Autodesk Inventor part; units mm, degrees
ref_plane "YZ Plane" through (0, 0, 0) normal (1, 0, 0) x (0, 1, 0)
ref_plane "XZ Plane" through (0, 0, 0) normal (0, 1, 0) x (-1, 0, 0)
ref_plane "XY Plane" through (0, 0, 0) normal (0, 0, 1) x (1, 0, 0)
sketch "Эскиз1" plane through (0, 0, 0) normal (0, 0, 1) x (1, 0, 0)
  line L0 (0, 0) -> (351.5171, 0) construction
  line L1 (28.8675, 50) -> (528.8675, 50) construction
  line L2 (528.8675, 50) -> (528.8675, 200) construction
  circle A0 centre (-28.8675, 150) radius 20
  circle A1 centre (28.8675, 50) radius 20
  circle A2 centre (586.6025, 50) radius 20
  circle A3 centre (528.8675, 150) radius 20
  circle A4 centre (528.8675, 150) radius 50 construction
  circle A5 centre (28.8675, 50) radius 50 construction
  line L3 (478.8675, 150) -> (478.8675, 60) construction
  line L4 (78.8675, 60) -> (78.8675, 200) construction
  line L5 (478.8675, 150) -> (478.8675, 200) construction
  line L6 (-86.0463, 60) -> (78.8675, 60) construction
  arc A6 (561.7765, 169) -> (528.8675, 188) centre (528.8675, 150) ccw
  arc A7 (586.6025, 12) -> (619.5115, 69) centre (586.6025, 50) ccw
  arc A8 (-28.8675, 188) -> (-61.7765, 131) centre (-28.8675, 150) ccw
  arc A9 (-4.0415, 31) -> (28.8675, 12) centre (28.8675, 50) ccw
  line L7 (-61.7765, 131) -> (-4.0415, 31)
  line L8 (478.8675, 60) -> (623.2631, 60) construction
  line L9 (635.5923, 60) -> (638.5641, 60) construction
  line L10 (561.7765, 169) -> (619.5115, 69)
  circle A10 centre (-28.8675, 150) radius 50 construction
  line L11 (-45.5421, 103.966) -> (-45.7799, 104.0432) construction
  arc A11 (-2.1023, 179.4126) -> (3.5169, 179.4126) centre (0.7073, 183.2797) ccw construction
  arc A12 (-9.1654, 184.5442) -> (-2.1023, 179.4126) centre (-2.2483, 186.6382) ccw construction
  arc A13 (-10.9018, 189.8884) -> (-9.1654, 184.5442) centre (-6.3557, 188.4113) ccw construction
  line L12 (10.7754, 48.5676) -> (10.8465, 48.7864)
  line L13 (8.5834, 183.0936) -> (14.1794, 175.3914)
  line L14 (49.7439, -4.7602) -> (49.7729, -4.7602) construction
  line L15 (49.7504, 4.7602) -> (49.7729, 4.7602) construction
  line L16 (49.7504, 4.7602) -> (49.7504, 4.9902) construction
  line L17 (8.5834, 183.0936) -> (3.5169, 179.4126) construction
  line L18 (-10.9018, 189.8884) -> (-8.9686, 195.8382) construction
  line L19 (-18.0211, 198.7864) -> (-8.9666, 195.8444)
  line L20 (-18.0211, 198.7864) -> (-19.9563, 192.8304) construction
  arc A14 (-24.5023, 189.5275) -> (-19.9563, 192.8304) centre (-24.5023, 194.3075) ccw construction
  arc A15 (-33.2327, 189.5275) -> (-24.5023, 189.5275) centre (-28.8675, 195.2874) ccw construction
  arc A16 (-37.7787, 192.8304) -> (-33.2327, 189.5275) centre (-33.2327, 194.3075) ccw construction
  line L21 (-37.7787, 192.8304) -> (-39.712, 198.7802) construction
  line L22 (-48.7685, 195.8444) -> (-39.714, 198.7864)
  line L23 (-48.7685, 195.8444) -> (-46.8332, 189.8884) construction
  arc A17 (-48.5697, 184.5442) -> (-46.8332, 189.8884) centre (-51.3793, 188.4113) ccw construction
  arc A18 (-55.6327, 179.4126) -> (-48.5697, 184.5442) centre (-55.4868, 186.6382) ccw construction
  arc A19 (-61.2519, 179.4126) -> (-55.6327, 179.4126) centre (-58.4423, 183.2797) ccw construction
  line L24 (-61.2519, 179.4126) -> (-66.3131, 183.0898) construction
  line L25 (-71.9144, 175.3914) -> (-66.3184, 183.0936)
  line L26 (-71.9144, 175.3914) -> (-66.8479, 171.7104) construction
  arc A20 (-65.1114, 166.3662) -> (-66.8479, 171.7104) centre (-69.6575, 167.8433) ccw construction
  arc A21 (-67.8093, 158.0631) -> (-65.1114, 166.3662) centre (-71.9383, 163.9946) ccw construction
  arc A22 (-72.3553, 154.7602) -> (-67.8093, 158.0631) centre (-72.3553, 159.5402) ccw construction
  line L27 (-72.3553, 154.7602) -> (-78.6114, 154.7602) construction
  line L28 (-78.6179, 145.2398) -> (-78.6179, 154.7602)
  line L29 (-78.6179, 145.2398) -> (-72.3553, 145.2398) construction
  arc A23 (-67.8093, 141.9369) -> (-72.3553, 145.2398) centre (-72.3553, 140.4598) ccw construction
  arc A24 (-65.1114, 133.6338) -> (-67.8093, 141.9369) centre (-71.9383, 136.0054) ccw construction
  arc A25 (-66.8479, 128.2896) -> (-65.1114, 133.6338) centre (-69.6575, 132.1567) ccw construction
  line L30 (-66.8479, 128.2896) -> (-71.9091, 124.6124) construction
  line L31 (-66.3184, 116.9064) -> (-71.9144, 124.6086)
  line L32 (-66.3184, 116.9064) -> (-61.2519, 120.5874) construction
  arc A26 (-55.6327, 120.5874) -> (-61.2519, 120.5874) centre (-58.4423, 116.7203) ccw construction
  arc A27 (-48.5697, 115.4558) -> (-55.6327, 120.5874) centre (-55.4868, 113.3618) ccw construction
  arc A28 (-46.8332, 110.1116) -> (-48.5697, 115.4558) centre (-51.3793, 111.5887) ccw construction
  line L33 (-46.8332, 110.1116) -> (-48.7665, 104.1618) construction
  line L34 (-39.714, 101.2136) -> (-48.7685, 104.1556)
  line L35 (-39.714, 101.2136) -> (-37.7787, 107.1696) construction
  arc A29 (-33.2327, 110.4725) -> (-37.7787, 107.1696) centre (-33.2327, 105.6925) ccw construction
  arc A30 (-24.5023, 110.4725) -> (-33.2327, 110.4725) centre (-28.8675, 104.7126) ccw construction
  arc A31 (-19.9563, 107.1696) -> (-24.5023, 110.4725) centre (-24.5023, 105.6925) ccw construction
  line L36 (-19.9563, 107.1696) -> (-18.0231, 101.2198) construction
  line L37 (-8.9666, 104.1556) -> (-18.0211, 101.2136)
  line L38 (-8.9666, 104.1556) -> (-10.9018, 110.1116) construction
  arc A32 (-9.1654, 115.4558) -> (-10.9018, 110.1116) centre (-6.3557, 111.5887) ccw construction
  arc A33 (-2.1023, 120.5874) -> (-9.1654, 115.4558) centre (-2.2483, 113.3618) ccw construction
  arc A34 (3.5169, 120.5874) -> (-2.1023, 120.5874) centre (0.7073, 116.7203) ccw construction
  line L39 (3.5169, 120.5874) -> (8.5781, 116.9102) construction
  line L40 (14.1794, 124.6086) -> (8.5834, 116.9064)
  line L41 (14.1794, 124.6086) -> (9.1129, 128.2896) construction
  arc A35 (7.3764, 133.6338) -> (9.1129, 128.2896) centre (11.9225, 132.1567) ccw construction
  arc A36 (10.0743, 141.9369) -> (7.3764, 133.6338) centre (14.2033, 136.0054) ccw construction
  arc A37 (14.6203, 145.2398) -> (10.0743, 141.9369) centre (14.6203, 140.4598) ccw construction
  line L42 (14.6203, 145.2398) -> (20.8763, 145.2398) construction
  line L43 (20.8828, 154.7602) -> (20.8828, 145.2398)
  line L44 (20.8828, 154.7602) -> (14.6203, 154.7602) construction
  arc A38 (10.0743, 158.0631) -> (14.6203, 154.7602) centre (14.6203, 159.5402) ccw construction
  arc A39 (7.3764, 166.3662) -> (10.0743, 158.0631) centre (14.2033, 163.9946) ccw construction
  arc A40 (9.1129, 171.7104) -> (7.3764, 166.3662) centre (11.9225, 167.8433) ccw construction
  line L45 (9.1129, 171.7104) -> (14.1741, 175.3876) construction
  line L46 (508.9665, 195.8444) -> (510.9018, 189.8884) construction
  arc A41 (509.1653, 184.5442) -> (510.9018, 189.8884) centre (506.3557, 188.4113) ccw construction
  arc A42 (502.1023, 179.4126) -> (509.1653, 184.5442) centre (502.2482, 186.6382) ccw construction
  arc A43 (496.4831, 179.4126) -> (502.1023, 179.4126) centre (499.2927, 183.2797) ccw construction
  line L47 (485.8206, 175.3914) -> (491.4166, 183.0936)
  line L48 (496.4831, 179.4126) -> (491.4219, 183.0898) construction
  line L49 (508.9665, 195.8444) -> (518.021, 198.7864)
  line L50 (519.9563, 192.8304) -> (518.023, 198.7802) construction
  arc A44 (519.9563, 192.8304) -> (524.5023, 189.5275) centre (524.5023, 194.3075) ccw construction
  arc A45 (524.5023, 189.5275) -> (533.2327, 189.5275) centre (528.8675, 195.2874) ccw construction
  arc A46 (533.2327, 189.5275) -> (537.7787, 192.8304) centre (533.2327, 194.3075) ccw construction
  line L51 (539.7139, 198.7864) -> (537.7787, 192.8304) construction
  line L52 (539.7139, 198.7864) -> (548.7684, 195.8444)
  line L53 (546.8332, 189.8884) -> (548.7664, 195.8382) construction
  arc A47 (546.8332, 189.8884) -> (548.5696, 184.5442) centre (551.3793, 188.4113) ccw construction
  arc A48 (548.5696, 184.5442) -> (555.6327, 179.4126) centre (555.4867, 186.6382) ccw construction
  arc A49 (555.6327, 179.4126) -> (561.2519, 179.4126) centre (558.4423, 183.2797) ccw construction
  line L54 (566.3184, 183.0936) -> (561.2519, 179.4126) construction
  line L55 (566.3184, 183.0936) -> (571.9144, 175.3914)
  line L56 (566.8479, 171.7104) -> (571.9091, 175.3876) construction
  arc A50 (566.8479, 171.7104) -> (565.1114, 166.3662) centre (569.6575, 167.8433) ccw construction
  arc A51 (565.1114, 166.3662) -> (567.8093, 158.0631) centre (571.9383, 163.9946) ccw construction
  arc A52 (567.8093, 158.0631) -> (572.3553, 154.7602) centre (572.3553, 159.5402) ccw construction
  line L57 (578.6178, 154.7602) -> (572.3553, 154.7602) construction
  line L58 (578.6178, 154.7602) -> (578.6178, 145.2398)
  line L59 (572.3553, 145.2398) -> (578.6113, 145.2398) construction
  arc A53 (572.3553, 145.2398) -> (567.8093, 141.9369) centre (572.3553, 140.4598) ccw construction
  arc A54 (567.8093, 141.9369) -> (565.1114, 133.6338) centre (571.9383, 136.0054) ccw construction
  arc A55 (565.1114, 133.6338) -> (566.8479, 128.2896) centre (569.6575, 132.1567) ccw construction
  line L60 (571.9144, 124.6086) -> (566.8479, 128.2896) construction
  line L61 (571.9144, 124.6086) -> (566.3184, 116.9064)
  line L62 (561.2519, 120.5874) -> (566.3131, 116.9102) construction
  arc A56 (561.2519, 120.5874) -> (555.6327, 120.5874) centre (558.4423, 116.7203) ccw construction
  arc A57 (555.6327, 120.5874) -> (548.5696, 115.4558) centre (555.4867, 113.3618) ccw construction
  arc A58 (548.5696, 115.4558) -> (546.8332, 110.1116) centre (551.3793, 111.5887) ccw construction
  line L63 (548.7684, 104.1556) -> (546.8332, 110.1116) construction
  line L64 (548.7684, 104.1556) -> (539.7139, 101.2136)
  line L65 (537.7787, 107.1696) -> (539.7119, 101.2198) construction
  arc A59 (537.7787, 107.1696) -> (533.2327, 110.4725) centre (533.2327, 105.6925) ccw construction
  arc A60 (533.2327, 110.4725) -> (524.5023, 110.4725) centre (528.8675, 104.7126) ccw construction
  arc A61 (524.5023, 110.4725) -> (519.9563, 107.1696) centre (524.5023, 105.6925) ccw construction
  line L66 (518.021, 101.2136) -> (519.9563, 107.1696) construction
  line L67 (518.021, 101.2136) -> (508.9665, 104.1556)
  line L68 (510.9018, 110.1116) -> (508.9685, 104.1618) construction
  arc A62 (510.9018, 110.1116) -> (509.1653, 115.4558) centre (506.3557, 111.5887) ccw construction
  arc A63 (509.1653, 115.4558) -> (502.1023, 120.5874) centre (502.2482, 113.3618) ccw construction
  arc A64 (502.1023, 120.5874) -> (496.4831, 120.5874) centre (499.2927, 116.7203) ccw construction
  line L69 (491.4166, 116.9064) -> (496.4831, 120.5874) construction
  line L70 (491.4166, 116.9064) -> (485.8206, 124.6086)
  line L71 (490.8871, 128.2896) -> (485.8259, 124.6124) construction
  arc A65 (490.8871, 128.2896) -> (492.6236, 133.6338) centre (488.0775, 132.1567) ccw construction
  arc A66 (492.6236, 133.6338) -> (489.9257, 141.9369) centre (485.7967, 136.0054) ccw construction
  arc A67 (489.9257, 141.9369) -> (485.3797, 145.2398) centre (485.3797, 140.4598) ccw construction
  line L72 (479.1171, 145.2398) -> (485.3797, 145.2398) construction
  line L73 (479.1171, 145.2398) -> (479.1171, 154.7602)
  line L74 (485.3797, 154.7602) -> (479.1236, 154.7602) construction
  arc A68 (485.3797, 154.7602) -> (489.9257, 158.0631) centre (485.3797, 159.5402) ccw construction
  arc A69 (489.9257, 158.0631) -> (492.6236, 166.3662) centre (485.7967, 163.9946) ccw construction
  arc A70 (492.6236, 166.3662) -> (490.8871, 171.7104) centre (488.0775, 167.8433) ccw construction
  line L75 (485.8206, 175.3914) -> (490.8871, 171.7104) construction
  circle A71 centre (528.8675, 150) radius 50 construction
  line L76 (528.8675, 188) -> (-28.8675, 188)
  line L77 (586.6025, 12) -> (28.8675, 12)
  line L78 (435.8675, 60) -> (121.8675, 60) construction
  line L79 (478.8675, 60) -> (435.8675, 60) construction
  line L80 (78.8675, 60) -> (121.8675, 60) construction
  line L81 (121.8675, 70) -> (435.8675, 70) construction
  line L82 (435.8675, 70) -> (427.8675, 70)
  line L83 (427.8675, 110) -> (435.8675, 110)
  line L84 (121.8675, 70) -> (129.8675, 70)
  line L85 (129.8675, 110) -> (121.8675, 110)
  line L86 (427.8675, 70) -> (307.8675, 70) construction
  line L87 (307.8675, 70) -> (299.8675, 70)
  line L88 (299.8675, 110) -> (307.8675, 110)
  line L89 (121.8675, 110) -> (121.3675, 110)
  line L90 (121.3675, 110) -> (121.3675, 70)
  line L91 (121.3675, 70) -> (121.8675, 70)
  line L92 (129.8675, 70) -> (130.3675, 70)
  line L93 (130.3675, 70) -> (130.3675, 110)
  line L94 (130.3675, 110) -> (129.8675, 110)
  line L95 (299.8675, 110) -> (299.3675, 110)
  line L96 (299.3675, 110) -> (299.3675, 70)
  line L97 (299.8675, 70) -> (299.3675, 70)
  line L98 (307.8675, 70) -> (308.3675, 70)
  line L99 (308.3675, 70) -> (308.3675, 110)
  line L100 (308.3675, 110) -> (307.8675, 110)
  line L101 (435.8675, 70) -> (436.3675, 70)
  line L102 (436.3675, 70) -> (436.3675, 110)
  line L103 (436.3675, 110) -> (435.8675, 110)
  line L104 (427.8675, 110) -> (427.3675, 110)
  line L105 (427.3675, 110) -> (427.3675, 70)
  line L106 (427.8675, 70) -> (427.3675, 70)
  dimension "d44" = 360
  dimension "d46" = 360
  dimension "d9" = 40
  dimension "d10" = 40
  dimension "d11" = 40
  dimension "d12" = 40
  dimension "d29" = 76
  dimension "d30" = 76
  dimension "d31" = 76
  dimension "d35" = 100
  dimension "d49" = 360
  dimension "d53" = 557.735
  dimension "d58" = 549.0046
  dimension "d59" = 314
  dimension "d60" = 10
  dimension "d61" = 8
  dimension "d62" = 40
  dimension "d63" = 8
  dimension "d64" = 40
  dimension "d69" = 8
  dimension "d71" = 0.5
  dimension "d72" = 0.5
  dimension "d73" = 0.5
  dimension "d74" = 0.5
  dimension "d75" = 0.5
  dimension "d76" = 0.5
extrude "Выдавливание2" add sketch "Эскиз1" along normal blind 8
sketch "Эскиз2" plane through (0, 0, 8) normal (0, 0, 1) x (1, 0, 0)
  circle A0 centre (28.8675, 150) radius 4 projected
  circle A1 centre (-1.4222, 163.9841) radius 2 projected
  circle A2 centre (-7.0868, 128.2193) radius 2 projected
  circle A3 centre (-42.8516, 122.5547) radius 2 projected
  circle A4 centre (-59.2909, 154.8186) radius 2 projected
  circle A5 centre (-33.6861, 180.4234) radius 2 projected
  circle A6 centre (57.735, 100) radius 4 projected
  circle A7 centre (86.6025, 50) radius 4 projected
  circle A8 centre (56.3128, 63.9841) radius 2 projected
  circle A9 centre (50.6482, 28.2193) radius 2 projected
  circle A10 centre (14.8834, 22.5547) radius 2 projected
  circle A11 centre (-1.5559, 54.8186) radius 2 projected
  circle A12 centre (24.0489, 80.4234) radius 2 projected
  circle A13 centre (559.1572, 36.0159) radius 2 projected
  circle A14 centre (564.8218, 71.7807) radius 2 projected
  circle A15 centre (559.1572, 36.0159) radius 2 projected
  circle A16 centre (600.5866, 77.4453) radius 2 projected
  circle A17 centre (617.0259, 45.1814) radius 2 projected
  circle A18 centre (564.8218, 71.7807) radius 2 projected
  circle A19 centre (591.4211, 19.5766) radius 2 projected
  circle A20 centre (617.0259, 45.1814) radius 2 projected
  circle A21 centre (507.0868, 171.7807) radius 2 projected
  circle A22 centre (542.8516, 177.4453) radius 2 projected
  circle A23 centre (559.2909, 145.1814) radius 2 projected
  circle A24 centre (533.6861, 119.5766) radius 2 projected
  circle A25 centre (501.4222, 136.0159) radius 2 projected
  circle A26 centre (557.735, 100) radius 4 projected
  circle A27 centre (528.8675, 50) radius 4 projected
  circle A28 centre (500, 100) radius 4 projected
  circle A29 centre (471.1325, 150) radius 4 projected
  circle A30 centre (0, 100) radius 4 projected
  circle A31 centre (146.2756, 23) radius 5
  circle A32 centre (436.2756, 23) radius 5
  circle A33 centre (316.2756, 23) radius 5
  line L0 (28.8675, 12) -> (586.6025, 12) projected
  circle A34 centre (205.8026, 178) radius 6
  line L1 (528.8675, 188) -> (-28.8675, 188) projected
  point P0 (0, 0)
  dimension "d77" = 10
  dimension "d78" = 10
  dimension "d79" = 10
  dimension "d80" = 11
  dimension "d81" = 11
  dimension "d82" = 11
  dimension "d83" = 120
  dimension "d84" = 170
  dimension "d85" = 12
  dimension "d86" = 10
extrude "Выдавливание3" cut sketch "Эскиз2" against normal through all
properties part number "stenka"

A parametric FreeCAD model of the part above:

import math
import FreeCAD as App
import Part
import Sketcher
from FreeCAD import Vector
Q = App.Units.Quantity


def add_polygon(sketch, points):
    """Adds a closed chain of lines whose ends are joined by coincident constraints."""
    first, n = sketch.GeometryCount, len(points)
    for a, b in zip(points, points[1:] + points[:1]):
        sketch.addGeometry(Part.LineSegment(App.Vector(*a, 0), App.Vector(*b, 0)), False)
    for i in range(n):
        sketch.addConstraint(Sketcher.Constraint("Coincident", first + i, 2, first + (i + 1) % n, 1))

doc = App.newDocument("Part")
body = doc.addObject("PartDesign::Body", "Body")

sketch1 = body.newObject("Sketcher::SketchObject", "Sketch")
sketch1.AttachmentSupport = (doc.getObject("XY_Plane"), [""])
sketch1.MapMode = "FlatFace"
sketch1.addGeometry(Part.LineSegment(Vector(620, 69, 0), Vector(562, 169, 0)), False)
sketch1.addGeometry(Part.ArcOfCircle(Part.Circle(Vector(529, 150, 0), Vector(0, 0, 1), 38), math.radians(30), math.radians(90)), False)
sketch1.addGeometry(Part.LineSegment(Vector(529, 188, 0), Vector(-29, 188, 0)), False)
sketch1.addGeometry(Part.ArcOfCircle(Part.Circle(Vector(-29, 150, 0), Vector(0, 0, 1), 38), math.radians(90), math.radians(210)), False)
sketch1.addGeometry(Part.LineSegment(Vector(-62, 131, 0), Vector(-4, 31, 0)), False)
sketch1.addGeometry(Part.ArcOfCircle(Part.Circle(Vector(29, 50, 0), Vector(0, 0, 1), 38), math.radians(-150), math.radians(-90)), False)
sketch1.addGeometry(Part.LineSegment(Vector(29, 12, 0), Vector(587, 12, 0)), False)
sketch1.addGeometry(Part.ArcOfCircle(Part.Circle(Vector(587, 50, 0), Vector(0, 0, 1), 38), math.radians(-90), math.radians(30)), False)
sketch1.addGeometry(Part.Circle(Vector(29, 50, 0), Vector(0, 0, 1), 20), False)
add_polygon(sketch1, [(130, 70), (121, 70), (121, 110), (130, 110)])
sketch1.addGeometry(Part.Circle(Vector(587, 50, 0), Vector(0, 0, 1), 20), False)
add_polygon(sketch1, [(308, 70), (299, 70), (299, 110), (308, 110)])
add_polygon(sketch1, [(436, 70), (427, 70), (427, 110), (436, 110)])
sketch1.addGeometry(Part.Circle(Vector(-29, 150, 0), Vector(0, 0, 1), 20), False)
sketch1.addGeometry(Part.Circle(Vector(529, 150, 0), Vector(0, 0, 1), 20), False)
sketch1.addConstraint([
    Sketcher.Constraint("Tangent", 0, 2, 1, 1),
    Sketcher.Constraint("Tangent", 1, 2, 2, 1),
    Sketcher.Constraint("Tangent", 2, 2, 3, 1),
    Sketcher.Constraint("Tangent", 3, 2, 4, 1),
    Sketcher.Constraint("Tangent", 4, 2, 5, 1),
    Sketcher.Constraint("Tangent", 5, 2, 6, 1),
    Sketcher.Constraint("Tangent", 6, 2, 7, 1),
    Sketcher.Constraint("Tangent", 7, 2, 0, 1),
    Sketcher.Constraint("Horizontal", 2),
    Sketcher.Constraint("Horizontal", 6),
    Sketcher.Constraint("Horizontal", 9),
    Sketcher.Constraint("Vertical", 10),
    Sketcher.Constraint("Horizontal", 11),
    Sketcher.Constraint("Vertical", 12),
    Sketcher.Constraint("Horizontal", 14),
    Sketcher.Constraint("Vertical", 15),
    Sketcher.Constraint("Horizontal", 16),
    Sketcher.Constraint("Vertical", 17),
    Sketcher.Constraint("Horizontal", 18),
    Sketcher.Constraint("Vertical", 19),
    Sketcher.Constraint("Horizontal", 20),
    Sketcher.Constraint("Vertical", 21),
    Sketcher.Constraint("Coincident", 8, 3, 5, 3),
    Sketcher.Constraint("Coincident", 13, 3, 7, 3),
    Sketcher.Constraint("Coincident", 22, 3, 3, 3),
    Sketcher.Constraint("Coincident", 23, 3, 1, 3),
    Sketcher.Constraint("Equal", 1, 3),
    Sketcher.Constraint("Equal", 3, 5),
    Sketcher.Constraint("Equal", 5, 7),
    Sketcher.Constraint("Equal", 8, 13),
    Sketcher.Constraint("Equal", 13, 22),
    Sketcher.Constraint("Equal", 22, 23),
    Sketcher.Constraint("Parallel", 0, 4),
    Sketcher.Constraint("Horizontal", 12, 2, 14, 2),
    Sketcher.Constraint("Horizontal", 11, 2, 15, 2),
    Sketcher.Constraint("Horizontal", 17, 2, 18, 2),
    Sketcher.Constraint("Horizontal", 16, 2, 19, 2),
    Sketcher.Constraint("Equal", 11, 14),
    Sketcher.Constraint("Equal", 16, 18),
    Sketcher.Constraint("Diameter", 8, Q("40 mm")),
    Sketcher.Constraint("Radius", 1, Q("38 mm")),
    Sketcher.Constraint("DistanceY", 10, 1, 10, 2, Q("40 mm")),
    Sketcher.Constraint("DistanceY", 5, 3, 3, 3, Q("100 mm")),
    Sketcher.Constraint("DistanceY", 19, 2, 1, 3, Q("40 mm")),
    Sketcher.Constraint("DistanceX", 2, 2, 2, 1, Q("557.735 mm")),
    Sketcher.Constraint("DistanceX", 9, 2, 9, 1, Q("9 mm")),
    Sketcher.Constraint("Angle", 0, Q("120 deg")),
    Sketcher.Constraint("DistanceY", -1, 1, 1, 3, Q("150 mm")),
    Sketcher.Constraint("DistanceX", 12, 2, 14, 2, Q("169 mm")),
    Sketcher.Constraint("DistanceX", 17, 2, 18, 2, Q("119 mm")),
    Sketcher.Constraint("DistanceX", 5, 3, 9, 2, Q("92.5 mm")),
    Sketcher.Constraint("DistanceX", -1, 1, 1, 3, Q("528.8675 mm")),
])
pad1 = body.newObject("PartDesign::Pad", "Pad")
pad1.Profile = sketch1
pad1.Length = 8

sketch2 = body.newObject("Sketcher::SketchObject", "Sketch001")
sketch2.AttachmentSupport = (doc.getObject("XY_Plane"), [""])
sketch2.MapMode = "FlatFace"
sketch2.AttachmentOffset = App.Placement(Vector(0, 0, 8), App.Rotation())
sketch2.addGeometry([
    Part.Circle(Vector(28.9, 150, 0), Vector(0, 0, 1), 4),
    Part.Circle(Vector(-1.4, 164, 0), Vector(0, 0, 1), 2),
    Part.Circle(Vector(-7.1, 128.2, 0), Vector(0, 0, 1), 2),
    Part.Circle(Vector(-42.9, 122.6, 0), Vector(0, 0, 1), 2),
    Part.Circle(Vector(-59.3, 154.8, 0), Vector(0, 0, 1), 2),
    Part.Circle(Vector(-33.7, 180.4, 0), Vector(0, 0, 1), 2),
    Part.Circle(Vector(57.7, 100, 0), Vector(0, 0, 1), 4),
    Part.Circle(Vector(86.6, 50, 0), Vector(0, 0, 1), 4),
    Part.Circle(Vector(56.3, 64, 0), Vector(0, 0, 1), 2),
    Part.Circle(Vector(50.6, 28.2, 0), Vector(0, 0, 1), 2),
    Part.Circle(Vector(14.9, 22.6, 0), Vector(0, 0, 1), 2),
    Part.Circle(Vector(-1.6, 54.8, 0), Vector(0, 0, 1), 2),
    Part.Circle(Vector(24, 80.4, 0), Vector(0, 0, 1), 2),
    Part.Circle(Vector(559.2, 36, 0), Vector(0, 0, 1), 2),
    Part.Circle(Vector(564.8, 71.8, 0), Vector(0, 0, 1), 2),
    Part.Circle(Vector(600.6, 77.4, 0), Vector(0, 0, 1), 2),
    Part.Circle(Vector(617, 45.2, 0), Vector(0, 0, 1), 2),
    Part.Circle(Vector(591.4, 19.6, 0), Vector(0, 0, 1), 2),
    Part.Circle(Vector(507.1, 171.8, 0), Vector(0, 0, 1), 2),
    Part.Circle(Vector(542.9, 177.4, 0), Vector(0, 0, 1), 2),
    Part.Circle(Vector(559.3, 145.2, 0), Vector(0, 0, 1), 2),
    Part.Circle(Vector(533.7, 119.6, 0), Vector(0, 0, 1), 2),
    Part.Circle(Vector(501.4, 136, 0), Vector(0, 0, 1), 2),
    Part.Circle(Vector(557.7, 100, 0), Vector(0, 0, 1), 4),
    Part.Circle(Vector(528.9, 50, 0), Vector(0, 0, 1), 4),
    Part.Circle(Vector(500, 100, 0), Vector(0, 0, 1), 4),
    Part.Circle(Vector(471.1, 150, 0), Vector(0, 0, 1), 4),
    Part.Circle(Vector(0, 100, 0), Vector(0, 0, 1), 4),
    Part.Circle(Vector(146.3, 23, 0), Vector(0, 0, 1), 5),
    Part.Circle(Vector(436.3, 23, 0), Vector(0, 0, 1), 5),
    Part.Circle(Vector(316.3, 23, 0), Vector(0, 0, 1), 5),
    Part.Circle(Vector(205.8, 178, 0), Vector(0, 0, 1), 6),
], False)
sketch2.addConstraint([
    Sketcher.Constraint("Equal", 1, 2),
    Sketcher.Constraint("Equal", 2, 3),
    Sketcher.Constraint("Equal", 3, 4),
    Sketcher.Constraint("Equal", 4, 5),
    Sketcher.Constraint("Equal", 0, 6),
    Sketcher.Constraint("Equal", 6, 7),
    Sketcher.Constraint("Equal", 5, 8),
    Sketcher.Constraint("Equal", 8, 9),
    Sketcher.Constraint("Equal", 9, 10),
    Sketcher.Constraint("Equal", 10, 11),
    Sketcher.Constraint("Equal", 11, 12),
    Sketcher.Constraint("Equal", 12, 13),
    Sketcher.Constraint("Equal", 13, 14),
    Sketcher.Constraint("Equal", 14, 15),
    Sketcher.Constraint("Equal", 15, 16),
    Sketcher.Constraint("Equal", 16, 17),
    Sketcher.Constraint("Equal", 17, 18),
    Sketcher.Constraint("Equal", 18, 19),
    Sketcher.Constraint("Equal", 19, 20),
    Sketcher.Constraint("Equal", 20, 21),
    Sketcher.Constraint("Equal", 21, 22),
    Sketcher.Constraint("Equal", 7, 23),
    Sketcher.Constraint("Equal", 23, 24),
    Sketcher.Constraint("Equal", 24, 25),
    Sketcher.Constraint("Equal", 25, 26),
    Sketcher.Constraint("Equal", 26, 27),
    Sketcher.Constraint("Equal", 28, 29),
    Sketcher.Constraint("Equal", 29, 30),
    Sketcher.Constraint("PointOnObject", 27, 3, -2),
    Sketcher.Constraint("Horizontal", 6, 3, 23, 3),
    Sketcher.Constraint("Horizontal", 7, 3, 24, 3),
    Sketcher.Constraint("Horizontal", 23, 3, 25, 3),
    Sketcher.Constraint("Horizontal", 0, 3, 26, 3),
    Sketcher.Constraint("Horizontal", 25, 3, 27, 3),
    Sketcher.Constraint("Horizontal", 28, 3, 29, 3),
    Sketcher.Constraint("Horizontal", 29, 3, 30, 3),
    Sketcher.Constraint("Diameter", 28, Q("10 mm")),
    Sketcher.Constraint("Diameter", 31, Q("12 mm")),
    Sketcher.Constraint("Diameter", 0, Q("8 mm")),
    Sketcher.Constraint("Diameter", 1, Q("4 mm")),
    Sketcher.Constraint("DistanceX", 30, 3, 29, 3, Q("120 mm")),
    Sketcher.Constraint("DistanceX", 28, 3, 30, 3, Q("170 mm")),
    Sketcher.Constraint("DistanceY", -1, 1, 0, 3, Q("150 mm")),
    Sketcher.Constraint("DistanceY", -1, 1, 6, 3, Q("100 mm")),
    Sketcher.Constraint("DistanceY", -1, 1, 7, 3, Q("50 mm")),
    Sketcher.Constraint("DistanceX", -1, 1, 25, 3, Q("500 mm")),
    Sketcher.Constraint("DistanceY", -1, 1, 28, 3, Q("23 mm")),
    Sketcher.Constraint("DistanceY", -1, 1, 31, 3, Q("178 mm")),
    Sketcher.Constraint("DistanceY", 9, 3, 2, 3, Q("100 mm")),
    Sketcher.Constraint("DistanceY", 14, 3, 18, 3, Q("100 mm")),
    Sketcher.Constraint("DistanceY", 15, 3, 19, 3, Q("100 mm")),
    Sketcher.Constraint("DistanceX", 7, 3, 31, 3, Q("119.2 mm")),
    Sketcher.Constraint("DistanceY", -1, 1, 1, 3, Q("163.984 mm")),
    Sketcher.Constraint("DistanceX", 4, 3, -1, 1, Q("59.291 mm")),
    Sketcher.Constraint("DistanceX", 5, 3, -1, 1, Q("33.686 mm")),
    Sketcher.Constraint("DistanceX", -1, 1, 6, 3, Q("57.735 mm")),
    Sketcher.Constraint("DistanceY", -1, 1, 8, 3, Q("63.984 mm")),
    Sketcher.Constraint("DistanceX", 11, 3, -1, 1, Q("1.556 mm")),
    Sketcher.Constraint("DistanceX", -1, 1, 12, 3, Q("24.049 mm")),
    Sketcher.Constraint("DistanceY", -1, 1, 13, 3, Q("36.016 mm")),
    Sketcher.Constraint("DistanceX", -1, 1, 16, 3, Q("617.026 mm")),
    Sketcher.Constraint("DistanceX", -1, 1, 17, 3, Q("591.421 mm")),
    Sketcher.Constraint("DistanceX", -1, 1, 20, 3, Q("559.291 mm")),
    Sketcher.Constraint("DistanceX", -1, 1, 21, 3, Q("533.686 mm")),
    Sketcher.Constraint("DistanceY", -1, 1, 22, 3, Q("136.016 mm")),
    Sketcher.Constraint("DistanceX", -1, 1, 23, 3, Q("557.735 mm")),
    Sketcher.Constraint("DistanceX", 3, 3, 0, 3, Q("71.719 mm")),
    Sketcher.Constraint("DistanceY", 3, 3, 4, 3, Q("32.264 mm")),
    Sketcher.Constraint("DistanceX", 4, 3, 2, 3, Q("52.204 mm")),
    Sketcher.Constraint("DistanceX", 5, 3, 1, 3, Q("32.264 mm")),
    Sketcher.Constraint("DistanceY", 2, 3, 5, 3, Q("52.204 mm")),
    Sketcher.Constraint("DistanceX", 0, 3, 7, 3, Q("57.735 mm")),
    Sketcher.Constraint("DistanceX", 2, 3, 9, 3, Q("57.735 mm")),
    Sketcher.Constraint("DistanceX", 10, 3, 7, 3, Q("71.719 mm")),
    Sketcher.Constraint("DistanceY", 10, 3, 11, 3, Q("32.264 mm")),
    Sketcher.Constraint("DistanceX", 12, 3, 8, 3, Q("32.264 mm")),
    Sketcher.Constraint("DistanceY", 12, 3, 2, 3, Q("47.796 mm")),
    Sketcher.Constraint("DistanceX", 9, 3, 13, 3, Q("508.509 mm")),
    Sketcher.Constraint("DistanceX", 8, 3, 14, 3, Q("508.509 mm")),
    Sketcher.Constraint("DistanceX", 7, 3, 15, 3, Q("513.984 mm")),
    Sketcher.Constraint("DistanceY", 16, 3, 15, 3, Q("32.264 mm")),
    Sketcher.Constraint("DistanceY", 17, 3, 14, 3, Q("52.204 mm")),
    Sketcher.Constraint("DistanceX", 18, 3, 14, 3, Q("57.735 mm")),
    Sketcher.Constraint("DistanceX", 19, 3, 15, 3, Q("57.735 mm")),
    Sketcher.Constraint("DistanceY", 20, 3, 19, 3, Q("32.264 mm")),
    Sketcher.Constraint("DistanceY", 14, 3, 21, 3, Q("47.796 mm")),
    Sketcher.Constraint("DistanceX", 22, 3, 21, 3, Q("32.264 mm")),
    Sketcher.Constraint("DistanceX", 26, 3, 19, 3, Q("71.719 mm")),
    Sketcher.Constraint("DistanceX", 7, 3, 28, 3, Q("59.673 mm")),
    Sketcher.Constraint("DistanceX", 29, 3, 24, 3, Q("92.592 mm")),
    Sketcher.Constraint("DistanceX", -1, 1, 0, 3, Q("28.8675 mm")),
    Sketcher.Constraint("DistanceY", -1, 1, 2, 3, Q("128.2193 mm")),
    Sketcher.Constraint("DistanceY", -1, 1, 3, 3, Q("122.5547 mm")),
    Sketcher.Constraint("DistanceY", -1, 1, 10, 3, Q("22.5547 mm")),
    Sketcher.Constraint("DistanceY", -1, 1, 14, 3, Q("71.7807 mm")),
    Sketcher.Constraint("DistanceY", -1, 1, 15, 3, Q("77.4453 mm")),
])
pocket1 = body.newObject("PartDesign::Pocket", "Pocket")
pocket1.Profile = sketch2
pocket1.Type = "ThroughAll"

doc.recompute()
